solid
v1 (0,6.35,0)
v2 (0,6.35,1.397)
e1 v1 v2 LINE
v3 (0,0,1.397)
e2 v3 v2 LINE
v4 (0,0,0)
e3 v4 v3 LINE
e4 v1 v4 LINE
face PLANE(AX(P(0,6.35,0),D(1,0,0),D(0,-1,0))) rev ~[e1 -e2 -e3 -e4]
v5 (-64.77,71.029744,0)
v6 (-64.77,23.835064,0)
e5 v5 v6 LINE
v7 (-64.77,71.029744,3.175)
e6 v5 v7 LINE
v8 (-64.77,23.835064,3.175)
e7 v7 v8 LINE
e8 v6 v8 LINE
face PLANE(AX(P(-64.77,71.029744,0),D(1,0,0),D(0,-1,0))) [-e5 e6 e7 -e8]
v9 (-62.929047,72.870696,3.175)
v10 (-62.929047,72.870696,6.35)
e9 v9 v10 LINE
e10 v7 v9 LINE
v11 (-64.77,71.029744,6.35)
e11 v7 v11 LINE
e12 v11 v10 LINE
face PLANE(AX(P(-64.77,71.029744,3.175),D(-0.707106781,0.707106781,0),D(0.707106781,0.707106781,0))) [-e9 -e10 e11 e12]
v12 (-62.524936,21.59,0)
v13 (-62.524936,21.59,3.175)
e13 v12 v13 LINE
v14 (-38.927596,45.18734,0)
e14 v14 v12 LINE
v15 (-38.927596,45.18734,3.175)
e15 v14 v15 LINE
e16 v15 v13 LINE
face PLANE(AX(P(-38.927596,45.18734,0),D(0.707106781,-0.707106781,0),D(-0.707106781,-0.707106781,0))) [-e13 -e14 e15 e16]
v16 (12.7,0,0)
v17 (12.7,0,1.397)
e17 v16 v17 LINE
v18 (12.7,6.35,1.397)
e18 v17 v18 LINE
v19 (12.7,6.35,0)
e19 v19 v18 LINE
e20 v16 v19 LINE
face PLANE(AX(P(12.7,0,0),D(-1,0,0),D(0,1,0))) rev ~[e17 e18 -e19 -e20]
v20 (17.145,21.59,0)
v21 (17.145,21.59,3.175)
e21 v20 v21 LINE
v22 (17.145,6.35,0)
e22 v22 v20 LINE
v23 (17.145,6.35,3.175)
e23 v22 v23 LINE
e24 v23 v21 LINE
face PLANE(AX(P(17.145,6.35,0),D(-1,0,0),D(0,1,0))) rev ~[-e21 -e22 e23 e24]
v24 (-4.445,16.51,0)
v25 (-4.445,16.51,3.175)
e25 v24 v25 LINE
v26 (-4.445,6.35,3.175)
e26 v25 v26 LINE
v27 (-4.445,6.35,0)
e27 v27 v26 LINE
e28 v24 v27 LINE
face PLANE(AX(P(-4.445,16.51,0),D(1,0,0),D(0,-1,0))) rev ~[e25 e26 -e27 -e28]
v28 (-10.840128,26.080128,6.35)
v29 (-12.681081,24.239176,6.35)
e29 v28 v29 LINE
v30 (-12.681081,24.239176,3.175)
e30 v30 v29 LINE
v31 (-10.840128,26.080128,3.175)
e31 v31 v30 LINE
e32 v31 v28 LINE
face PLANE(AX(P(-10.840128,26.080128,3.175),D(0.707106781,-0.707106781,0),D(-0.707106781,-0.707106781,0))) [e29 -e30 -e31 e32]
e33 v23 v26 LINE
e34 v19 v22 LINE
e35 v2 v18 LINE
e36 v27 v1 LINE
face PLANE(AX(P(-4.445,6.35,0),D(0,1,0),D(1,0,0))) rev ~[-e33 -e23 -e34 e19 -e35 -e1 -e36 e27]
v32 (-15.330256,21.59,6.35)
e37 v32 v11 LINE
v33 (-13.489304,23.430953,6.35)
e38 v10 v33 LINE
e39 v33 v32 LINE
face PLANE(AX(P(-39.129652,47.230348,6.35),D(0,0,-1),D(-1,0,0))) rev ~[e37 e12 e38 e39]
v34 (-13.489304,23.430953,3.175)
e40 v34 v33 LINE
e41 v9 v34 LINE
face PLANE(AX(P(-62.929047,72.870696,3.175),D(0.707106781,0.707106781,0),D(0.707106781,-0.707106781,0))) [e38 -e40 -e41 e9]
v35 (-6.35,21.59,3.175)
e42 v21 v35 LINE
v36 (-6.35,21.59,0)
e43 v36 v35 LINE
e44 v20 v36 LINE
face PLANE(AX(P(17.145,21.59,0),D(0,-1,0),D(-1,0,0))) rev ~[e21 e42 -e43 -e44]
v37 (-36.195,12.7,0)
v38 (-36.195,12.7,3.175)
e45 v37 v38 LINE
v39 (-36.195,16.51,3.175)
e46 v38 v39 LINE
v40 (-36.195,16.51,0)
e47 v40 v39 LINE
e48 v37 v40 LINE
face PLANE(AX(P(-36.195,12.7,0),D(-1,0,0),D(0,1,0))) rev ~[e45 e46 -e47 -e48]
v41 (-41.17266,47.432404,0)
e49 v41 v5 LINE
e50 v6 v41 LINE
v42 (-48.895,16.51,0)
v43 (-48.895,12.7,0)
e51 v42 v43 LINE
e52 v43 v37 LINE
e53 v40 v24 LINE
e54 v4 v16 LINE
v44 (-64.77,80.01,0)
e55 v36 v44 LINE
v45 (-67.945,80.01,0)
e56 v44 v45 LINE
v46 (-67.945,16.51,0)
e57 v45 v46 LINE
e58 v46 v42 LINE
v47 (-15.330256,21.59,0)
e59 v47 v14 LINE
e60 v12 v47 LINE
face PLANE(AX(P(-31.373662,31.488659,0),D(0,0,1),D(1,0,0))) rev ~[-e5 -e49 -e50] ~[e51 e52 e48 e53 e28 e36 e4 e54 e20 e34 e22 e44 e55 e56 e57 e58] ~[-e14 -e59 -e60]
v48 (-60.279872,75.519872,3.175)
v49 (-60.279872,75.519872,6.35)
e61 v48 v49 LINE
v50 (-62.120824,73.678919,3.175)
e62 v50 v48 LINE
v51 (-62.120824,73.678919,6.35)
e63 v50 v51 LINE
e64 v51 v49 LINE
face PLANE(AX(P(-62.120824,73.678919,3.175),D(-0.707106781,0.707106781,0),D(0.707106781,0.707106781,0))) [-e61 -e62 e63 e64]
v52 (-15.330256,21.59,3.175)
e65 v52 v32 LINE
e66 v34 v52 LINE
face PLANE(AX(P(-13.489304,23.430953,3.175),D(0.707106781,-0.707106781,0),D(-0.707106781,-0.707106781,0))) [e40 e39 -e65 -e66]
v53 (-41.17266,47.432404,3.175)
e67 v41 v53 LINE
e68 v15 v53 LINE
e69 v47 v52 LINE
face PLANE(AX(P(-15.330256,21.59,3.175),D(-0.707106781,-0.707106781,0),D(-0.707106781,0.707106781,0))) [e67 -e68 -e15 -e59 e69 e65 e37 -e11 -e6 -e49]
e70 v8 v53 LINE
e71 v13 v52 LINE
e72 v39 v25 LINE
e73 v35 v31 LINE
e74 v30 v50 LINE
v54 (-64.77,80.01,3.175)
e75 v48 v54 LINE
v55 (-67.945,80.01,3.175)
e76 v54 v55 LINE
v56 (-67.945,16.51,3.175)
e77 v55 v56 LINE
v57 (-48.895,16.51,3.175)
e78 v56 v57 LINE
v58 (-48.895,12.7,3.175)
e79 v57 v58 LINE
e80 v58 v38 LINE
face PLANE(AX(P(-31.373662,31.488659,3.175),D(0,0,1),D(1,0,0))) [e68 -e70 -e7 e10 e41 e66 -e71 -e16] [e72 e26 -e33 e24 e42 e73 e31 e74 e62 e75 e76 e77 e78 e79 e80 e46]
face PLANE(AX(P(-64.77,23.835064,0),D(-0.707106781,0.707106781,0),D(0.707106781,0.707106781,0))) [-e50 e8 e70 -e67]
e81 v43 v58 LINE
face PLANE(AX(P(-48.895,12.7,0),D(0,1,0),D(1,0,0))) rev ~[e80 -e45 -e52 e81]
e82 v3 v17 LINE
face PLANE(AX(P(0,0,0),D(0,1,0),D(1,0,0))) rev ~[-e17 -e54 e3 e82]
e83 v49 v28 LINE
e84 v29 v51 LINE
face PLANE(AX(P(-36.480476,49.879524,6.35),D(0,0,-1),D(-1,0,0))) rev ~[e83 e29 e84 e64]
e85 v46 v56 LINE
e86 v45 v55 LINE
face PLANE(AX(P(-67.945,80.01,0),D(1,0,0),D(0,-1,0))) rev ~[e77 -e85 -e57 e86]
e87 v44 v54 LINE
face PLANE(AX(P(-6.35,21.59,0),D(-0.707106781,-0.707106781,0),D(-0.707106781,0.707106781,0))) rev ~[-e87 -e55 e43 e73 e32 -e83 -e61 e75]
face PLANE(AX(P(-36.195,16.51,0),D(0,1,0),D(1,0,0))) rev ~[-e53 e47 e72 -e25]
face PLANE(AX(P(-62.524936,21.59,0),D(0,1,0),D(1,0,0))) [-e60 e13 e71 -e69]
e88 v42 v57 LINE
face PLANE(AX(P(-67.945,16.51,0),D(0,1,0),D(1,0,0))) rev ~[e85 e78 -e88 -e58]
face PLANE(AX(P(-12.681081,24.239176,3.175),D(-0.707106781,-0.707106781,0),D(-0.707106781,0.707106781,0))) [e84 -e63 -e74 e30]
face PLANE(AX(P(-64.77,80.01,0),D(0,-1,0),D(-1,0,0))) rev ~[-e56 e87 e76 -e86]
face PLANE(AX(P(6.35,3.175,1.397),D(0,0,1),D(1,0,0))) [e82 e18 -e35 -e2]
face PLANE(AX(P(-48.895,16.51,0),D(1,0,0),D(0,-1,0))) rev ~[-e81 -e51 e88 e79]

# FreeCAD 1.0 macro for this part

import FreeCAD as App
import Part
import Sketcher

V = App.Vector
Q = App.Units.Quantity

doc = App.newDocument("Part")
body = doc.addObject("PartDesign::Body", "Body")

# Sketch on XY plane
sketch1 = doc.addObject("Sketcher::SketchObject", "Sketch")
body.addObject(sketch1)
sketch1.AttachmentSupport = (doc.XY_Plane, [""])
sketch1.MapMode = "FlatFace"
sketch1.addGeometry([
    Part.LineSegment(V(0, 0, 0), V(12.7, 0, 0)),  # 0
    Part.LineSegment(V(12.7, 0, 0), V(12.7, 6.35, 0)),  # 1
    Part.LineSegment(V(12.7, 6.35, 0), V(17.145, 6.35, 0)),  # 2
    Part.LineSegment(V(17.145, 6.35, 0), V(17.145, 21.59, 0)),  # 3
    Part.LineSegment(V(17.145, 21.59, 0), V(-6.35, 21.59, 0)),  # 4
    Part.LineSegment(V(-6.35, 21.59, 0), V(-64.77, 80.01, 0)),  # 5
    Part.LineSegment(V(-64.77, 80.01, 0), V(-67.945, 80.01, 0)),  # 6
    Part.LineSegment(V(-67.945, 80.01, 0), V(-67.945, 16.51, 0)),  # 7
    Part.LineSegment(V(-67.945, 16.51, 0), V(-48.895, 16.51, 0)),  # 8
    Part.LineSegment(V(-48.895, 16.51, 0), V(-48.895, 12.7, 0)),  # 9
    Part.LineSegment(V(-48.895, 12.7, 0), V(-36.195, 12.7, 0)),  # 10
    Part.LineSegment(V(-36.195, 12.7, 0), V(-36.195, 16.51, 0)),  # 11
    Part.LineSegment(V(-36.195, 16.51, 0), V(-4.445, 16.51, 0)),  # 12
    Part.LineSegment(V(-4.445, 16.51, 0), V(-4.445, 6.35, 0)),  # 13
    Part.LineSegment(V(-4.445, 6.35, 0), V(0, 6.35, 0)),  # 14
    Part.LineSegment(V(0, 6.35, 0), V(0, 0, 0)),  # 15
    Part.LineSegment(V(-15.330256, 21.59, 0), V(-62.524936, 21.59, 0)),  # 16
    Part.LineSegment(V(-62.524936, 21.59, 0), V(-38.927596, 45.18734, 0)),  # 17
    Part.LineSegment(V(-38.927596, 45.18734, 0), V(-15.330256, 21.59, 0)),  # 18
    Part.LineSegment(V(-64.77, 23.835064, 0), V(-64.77, 71.029744, 0)),  # 19
    Part.LineSegment(V(-64.77, 71.029744, 0), V(-41.17266, 47.432404, 0)),  # 20
    Part.LineSegment(V(-41.17266, 47.432404, 0), V(-64.77, 23.835064, 0)),  # 21
], False)
sketch1.addConstraint([
    Sketcher.Constraint("Coincident", 0, 2, 1, 1),
    Sketcher.Constraint("Coincident", 1, 2, 2, 1),
    Sketcher.Constraint("Coincident", 2, 2, 3, 1),
    Sketcher.Constraint("Coincident", 3, 2, 4, 1),
    Sketcher.Constraint("Coincident", 4, 2, 5, 1),
    Sketcher.Constraint("Coincident", 5, 2, 6, 1),
    Sketcher.Constraint("Coincident", 6, 2, 7, 1),
    Sketcher.Constraint("Coincident", 7, 2, 8, 1),
    Sketcher.Constraint("Coincident", 8, 2, 9, 1),
    Sketcher.Constraint("Coincident", 9, 2, 10, 1),
    Sketcher.Constraint("Coincident", 10, 2, 11, 1),
    Sketcher.Constraint("Coincident", 11, 2, 12, 1),
    Sketcher.Constraint("Coincident", 12, 2, 13, 1),
    Sketcher.Constraint("Coincident", 13, 2, 14, 1),
    Sketcher.Constraint("Coincident", 14, 2, 15, 1),
    Sketcher.Constraint("Coincident", 15, 2, 0, 1),
    Sketcher.Constraint("Coincident", 16, 2, 17, 1),
    Sketcher.Constraint("Coincident", 17, 2, 18, 1),
    Sketcher.Constraint("Coincident", 18, 2, 16, 1),
    Sketcher.Constraint("Coincident", 19, 2, 20, 1),
    Sketcher.Constraint("Coincident", 20, 2, 21, 1),
    Sketcher.Constraint("Coincident", 21, 2, 19, 1),
    Sketcher.Constraint("Horizontal", 0),
    Sketcher.Constraint("Vertical", 1),
    Sketcher.Constraint("Horizontal", 2),
    Sketcher.Constraint("Vertical", 3),
    Sketcher.Constraint("Horizontal", 4),
    Sketcher.Constraint("Horizontal", 6),
    Sketcher.Constraint("Vertical", 7),
    Sketcher.Constraint("Horizontal", 8),
    Sketcher.Constraint("Vertical", 9),
    Sketcher.Constraint("Horizontal", 10),
    Sketcher.Constraint("Vertical", 11),
    Sketcher.Constraint("Horizontal", 12),
    Sketcher.Constraint("Vertical", 13),
    Sketcher.Constraint("Horizontal", 14),
    Sketcher.Constraint("Vertical", 15),
    Sketcher.Constraint("Horizontal", 16),
    Sketcher.Constraint("Vertical", 19),
    Sketcher.Constraint("Coincident", 15, 2, -1, 1),
    Sketcher.Constraint("Perpendicular", 5, 17),
    Sketcher.Constraint("Perpendicular", 17, 18),
    Sketcher.Constraint("Parallel", 18, 20),
    Sketcher.Constraint("Perpendicular", 20, 21),
    Sketcher.Constraint("Horizontal", 8, 2, 11, 2),
    Sketcher.Constraint("Horizontal", 2, 2, 13, 2),
    Sketcher.Constraint("Horizontal", 4, 2, 16, 2),
    Sketcher.Constraint("Vertical", 5, 2, 19, 2),
    Sketcher.Constraint("Equal", 0, 10),
    Sketcher.Constraint("Equal", 2, 14),
    Sketcher.Constraint("Equal", 16, 19),
    Sketcher.Constraint("Equal", 17, 18),
    Sketcher.Constraint("DistanceX", 0, 1, 0, 2, Q("0.5 in")),
    Sketcher.Constraint("DistanceY", 3, 1, 3, 2, Q("0.6 in")),
    Sketcher.Constraint("DistanceY", 7, 2, 7, 1, Q("2.5 in")),
    Sketcher.Constraint("DistanceY", 13, 2, 13, 1, Q("0.4 in")),
    Sketcher.Constraint("DistanceX", 8, 1, 8, 2, Q("0.75 in")),
    Sketcher.Constraint("DistanceX", 12, 1, 12, 2, Q("1.25 in")),
    Sketcher.Constraint("DistanceY", 1, 1, 1, 2, Q("0.25 in")),
    Sketcher.Constraint("DistanceY", 9, 2, 9, 1, Q("0.15 in")),
    Sketcher.Constraint("DistanceX", 2, 1, 2, 2, Q("0.175 in")),
    Sketcher.Constraint("DistanceX", 4, 2, 4, 1, Q("0.925 in")),
    Sketcher.Constraint("DistanceX", 16, 2, 16, 1, Q("47.19468 mm")),
    Sketcher.Constraint("DistanceX", 16, 2, -1, 1, Q("62.524936 mm")),
    Sketcher.Constraint("DistanceY", -1, 1, 19, 2, Q("71.029744 mm")),
])
pad1 = doc.addObject("PartDesign::Pad", "Pad")
body.addObject(pad1)
pad1.Profile = sketch1
pad1.Length = Q("0.125 in")

# Sketch on XY plane
sketch2 = doc.addObject("Sketcher::SketchObject", "Sketch001")
body.addObject(sketch2)
sketch2.AttachmentSupport = (doc.XY_Plane, [""])
sketch2.MapMode = "FlatFace"
sketch2.AttachmentOffset = App.Placement(V(0, 0, 0.125 * 25.4), App.Rotation())
sketch2.addGeometry([
    Part.LineSegment(V(0, 6.35, 0), V(0, 0, 0)),
    Part.LineSegment(V(0, 0, 0), V(12.7, 0, 0)),
    Part.LineSegment(V(12.7, 0, 0), V(12.7, 6.35, 0)),
    Part.LineSegment(V(12.7, 6.35, 0), V(0, 6.35, 0)),
], False)
sketch2.addConstraint([
    Sketcher.Constraint("Coincident", 0, 2, 1, 1),
    Sketcher.Constraint("Coincident", 1, 2, 2, 1),
    Sketcher.Constraint("Coincident", 2, 2, 3, 1),
    Sketcher.Constraint("Coincident", 3, 2, 0, 1),
    Sketcher.Constraint("Vertical", 0),
    Sketcher.Constraint("Horizontal", 1),
    Sketcher.Constraint("Vertical", 2),
    Sketcher.Constraint("Horizontal", 3),
    Sketcher.Constraint("Coincident", 0, 2, -1, 1),
    Sketcher.Constraint("DistanceX", 1, 1, 1, 2, Q("0.5 in")),
    Sketcher.Constraint("DistanceY", 0, 2, 0, 1, Q("0.25 in")),
])
pocket1 = doc.addObject("PartDesign::Pocket", "Pocket")
body.addObject(pocket1)
pocket1.Profile = sketch2
pocket1.Length = Q("0.07 in")

# Sketch on XY plane
sketch3 = doc.addObject("Sketcher::SketchObject", "Sketch002")
body.addObject(sketch3)
sketch3.AttachmentSupport = (doc.XY_Plane, [""])
sketch3.MapMode = "FlatFace"
sketch3.AttachmentOffset = App.Placement(V(0, 0, 0.125 * 25.4), App.Rotation())
sketch3.addGeometry([
    Part.LineSegment(V(-64.77, 71.029744, 0), V(-15.330256, 21.59, 0)),  # 0
    Part.LineSegment(V(-15.330256, 21.59, 0), V(-13.489304, 23.430953, 0)),  # 1
    Part.LineSegment(V(-13.489304, 23.430953, 0), V(-62.929047, 72.870696, 0)),  # 2
    Part.LineSegment(V(-62.929047, 72.870696, 0), V(-64.77, 71.029744, 0)),  # 3
    Part.LineSegment(V(-12.681081, 24.239176, 0), V(-10.840128, 26.080128, 0)),  # 4
    Part.LineSegment(V(-10.840128, 26.080128, 0), V(-60.279872, 75.519872, 0)),  # 5
    Part.LineSegment(V(-60.279872, 75.519872, 0), V(-62.120824, 73.678919, 0)),  # 6
    Part.LineSegment(V(-62.120824, 73.678919, 0), V(-12.681081, 24.239176, 0)),  # 7
], False)
sketch3.addConstraint([
    Sketcher.Constraint("Coincident", 0, 2, 1, 1),
    Sketcher.Constraint("Coincident", 1, 2, 2, 1),
    Sketcher.Constraint("Coincident", 2, 2, 3, 1),
    Sketcher.Constraint("Coincident", 3, 2, 0, 1),
    Sketcher.Constraint("Coincident", 4, 2, 5, 1),
    Sketcher.Constraint("Coincident", 5, 2, 6, 1),
    Sketcher.Constraint("Coincident", 6, 2, 7, 1),
    Sketcher.Constraint("Coincident", 7, 2, 4, 1),
    Sketcher.Constraint("Perpendicular", 0, 1),
    Sketcher.Constraint("Perpendicular", 1, 2),
    Sketcher.Constraint("Perpendicular", 2, 3),
    Sketcher.Constraint("Parallel", 3, 4),
    Sketcher.Constraint("Perpendicular", 4, 5),
    Sketcher.Constraint("Perpendicular", 5, 6),
    Sketcher.Constraint("Perpendicular", 6, 7),
    Sketcher.Constraint("Equal", 3, 4),
    Sketcher.Constraint("Equal", 2, 5),
    Sketcher.Constraint("Angle", 0, Q("-45 deg")),
    Sketcher.Constraint("DistanceY", -1, 1, 0, 2, Q("0.85 in")),
    Sketcher.Constraint("DistanceX", 3, 2, -1, 1, Q("2.55 in")),
    Sketcher.Constraint("Distance", 1, Q("0.1025 in")),
    Sketcher.Constraint("DistanceX", 4, 2, -1, 1, Q("10.840128 mm")),
    Sketcher.Constraint("DistanceY", -1, 1, 4, 2, Q("26.080128 mm")),
    Sketcher.Constraint("DistanceX", 5, 2, -1, 1, Q("60.279872 mm")),
])
pad2 = doc.addObject("PartDesign::Pad", "Pad001")
body.addObject(pad2)
pad2.Profile = sketch3
pad2.Length = Q("0.125 in")

doc.recompute()
